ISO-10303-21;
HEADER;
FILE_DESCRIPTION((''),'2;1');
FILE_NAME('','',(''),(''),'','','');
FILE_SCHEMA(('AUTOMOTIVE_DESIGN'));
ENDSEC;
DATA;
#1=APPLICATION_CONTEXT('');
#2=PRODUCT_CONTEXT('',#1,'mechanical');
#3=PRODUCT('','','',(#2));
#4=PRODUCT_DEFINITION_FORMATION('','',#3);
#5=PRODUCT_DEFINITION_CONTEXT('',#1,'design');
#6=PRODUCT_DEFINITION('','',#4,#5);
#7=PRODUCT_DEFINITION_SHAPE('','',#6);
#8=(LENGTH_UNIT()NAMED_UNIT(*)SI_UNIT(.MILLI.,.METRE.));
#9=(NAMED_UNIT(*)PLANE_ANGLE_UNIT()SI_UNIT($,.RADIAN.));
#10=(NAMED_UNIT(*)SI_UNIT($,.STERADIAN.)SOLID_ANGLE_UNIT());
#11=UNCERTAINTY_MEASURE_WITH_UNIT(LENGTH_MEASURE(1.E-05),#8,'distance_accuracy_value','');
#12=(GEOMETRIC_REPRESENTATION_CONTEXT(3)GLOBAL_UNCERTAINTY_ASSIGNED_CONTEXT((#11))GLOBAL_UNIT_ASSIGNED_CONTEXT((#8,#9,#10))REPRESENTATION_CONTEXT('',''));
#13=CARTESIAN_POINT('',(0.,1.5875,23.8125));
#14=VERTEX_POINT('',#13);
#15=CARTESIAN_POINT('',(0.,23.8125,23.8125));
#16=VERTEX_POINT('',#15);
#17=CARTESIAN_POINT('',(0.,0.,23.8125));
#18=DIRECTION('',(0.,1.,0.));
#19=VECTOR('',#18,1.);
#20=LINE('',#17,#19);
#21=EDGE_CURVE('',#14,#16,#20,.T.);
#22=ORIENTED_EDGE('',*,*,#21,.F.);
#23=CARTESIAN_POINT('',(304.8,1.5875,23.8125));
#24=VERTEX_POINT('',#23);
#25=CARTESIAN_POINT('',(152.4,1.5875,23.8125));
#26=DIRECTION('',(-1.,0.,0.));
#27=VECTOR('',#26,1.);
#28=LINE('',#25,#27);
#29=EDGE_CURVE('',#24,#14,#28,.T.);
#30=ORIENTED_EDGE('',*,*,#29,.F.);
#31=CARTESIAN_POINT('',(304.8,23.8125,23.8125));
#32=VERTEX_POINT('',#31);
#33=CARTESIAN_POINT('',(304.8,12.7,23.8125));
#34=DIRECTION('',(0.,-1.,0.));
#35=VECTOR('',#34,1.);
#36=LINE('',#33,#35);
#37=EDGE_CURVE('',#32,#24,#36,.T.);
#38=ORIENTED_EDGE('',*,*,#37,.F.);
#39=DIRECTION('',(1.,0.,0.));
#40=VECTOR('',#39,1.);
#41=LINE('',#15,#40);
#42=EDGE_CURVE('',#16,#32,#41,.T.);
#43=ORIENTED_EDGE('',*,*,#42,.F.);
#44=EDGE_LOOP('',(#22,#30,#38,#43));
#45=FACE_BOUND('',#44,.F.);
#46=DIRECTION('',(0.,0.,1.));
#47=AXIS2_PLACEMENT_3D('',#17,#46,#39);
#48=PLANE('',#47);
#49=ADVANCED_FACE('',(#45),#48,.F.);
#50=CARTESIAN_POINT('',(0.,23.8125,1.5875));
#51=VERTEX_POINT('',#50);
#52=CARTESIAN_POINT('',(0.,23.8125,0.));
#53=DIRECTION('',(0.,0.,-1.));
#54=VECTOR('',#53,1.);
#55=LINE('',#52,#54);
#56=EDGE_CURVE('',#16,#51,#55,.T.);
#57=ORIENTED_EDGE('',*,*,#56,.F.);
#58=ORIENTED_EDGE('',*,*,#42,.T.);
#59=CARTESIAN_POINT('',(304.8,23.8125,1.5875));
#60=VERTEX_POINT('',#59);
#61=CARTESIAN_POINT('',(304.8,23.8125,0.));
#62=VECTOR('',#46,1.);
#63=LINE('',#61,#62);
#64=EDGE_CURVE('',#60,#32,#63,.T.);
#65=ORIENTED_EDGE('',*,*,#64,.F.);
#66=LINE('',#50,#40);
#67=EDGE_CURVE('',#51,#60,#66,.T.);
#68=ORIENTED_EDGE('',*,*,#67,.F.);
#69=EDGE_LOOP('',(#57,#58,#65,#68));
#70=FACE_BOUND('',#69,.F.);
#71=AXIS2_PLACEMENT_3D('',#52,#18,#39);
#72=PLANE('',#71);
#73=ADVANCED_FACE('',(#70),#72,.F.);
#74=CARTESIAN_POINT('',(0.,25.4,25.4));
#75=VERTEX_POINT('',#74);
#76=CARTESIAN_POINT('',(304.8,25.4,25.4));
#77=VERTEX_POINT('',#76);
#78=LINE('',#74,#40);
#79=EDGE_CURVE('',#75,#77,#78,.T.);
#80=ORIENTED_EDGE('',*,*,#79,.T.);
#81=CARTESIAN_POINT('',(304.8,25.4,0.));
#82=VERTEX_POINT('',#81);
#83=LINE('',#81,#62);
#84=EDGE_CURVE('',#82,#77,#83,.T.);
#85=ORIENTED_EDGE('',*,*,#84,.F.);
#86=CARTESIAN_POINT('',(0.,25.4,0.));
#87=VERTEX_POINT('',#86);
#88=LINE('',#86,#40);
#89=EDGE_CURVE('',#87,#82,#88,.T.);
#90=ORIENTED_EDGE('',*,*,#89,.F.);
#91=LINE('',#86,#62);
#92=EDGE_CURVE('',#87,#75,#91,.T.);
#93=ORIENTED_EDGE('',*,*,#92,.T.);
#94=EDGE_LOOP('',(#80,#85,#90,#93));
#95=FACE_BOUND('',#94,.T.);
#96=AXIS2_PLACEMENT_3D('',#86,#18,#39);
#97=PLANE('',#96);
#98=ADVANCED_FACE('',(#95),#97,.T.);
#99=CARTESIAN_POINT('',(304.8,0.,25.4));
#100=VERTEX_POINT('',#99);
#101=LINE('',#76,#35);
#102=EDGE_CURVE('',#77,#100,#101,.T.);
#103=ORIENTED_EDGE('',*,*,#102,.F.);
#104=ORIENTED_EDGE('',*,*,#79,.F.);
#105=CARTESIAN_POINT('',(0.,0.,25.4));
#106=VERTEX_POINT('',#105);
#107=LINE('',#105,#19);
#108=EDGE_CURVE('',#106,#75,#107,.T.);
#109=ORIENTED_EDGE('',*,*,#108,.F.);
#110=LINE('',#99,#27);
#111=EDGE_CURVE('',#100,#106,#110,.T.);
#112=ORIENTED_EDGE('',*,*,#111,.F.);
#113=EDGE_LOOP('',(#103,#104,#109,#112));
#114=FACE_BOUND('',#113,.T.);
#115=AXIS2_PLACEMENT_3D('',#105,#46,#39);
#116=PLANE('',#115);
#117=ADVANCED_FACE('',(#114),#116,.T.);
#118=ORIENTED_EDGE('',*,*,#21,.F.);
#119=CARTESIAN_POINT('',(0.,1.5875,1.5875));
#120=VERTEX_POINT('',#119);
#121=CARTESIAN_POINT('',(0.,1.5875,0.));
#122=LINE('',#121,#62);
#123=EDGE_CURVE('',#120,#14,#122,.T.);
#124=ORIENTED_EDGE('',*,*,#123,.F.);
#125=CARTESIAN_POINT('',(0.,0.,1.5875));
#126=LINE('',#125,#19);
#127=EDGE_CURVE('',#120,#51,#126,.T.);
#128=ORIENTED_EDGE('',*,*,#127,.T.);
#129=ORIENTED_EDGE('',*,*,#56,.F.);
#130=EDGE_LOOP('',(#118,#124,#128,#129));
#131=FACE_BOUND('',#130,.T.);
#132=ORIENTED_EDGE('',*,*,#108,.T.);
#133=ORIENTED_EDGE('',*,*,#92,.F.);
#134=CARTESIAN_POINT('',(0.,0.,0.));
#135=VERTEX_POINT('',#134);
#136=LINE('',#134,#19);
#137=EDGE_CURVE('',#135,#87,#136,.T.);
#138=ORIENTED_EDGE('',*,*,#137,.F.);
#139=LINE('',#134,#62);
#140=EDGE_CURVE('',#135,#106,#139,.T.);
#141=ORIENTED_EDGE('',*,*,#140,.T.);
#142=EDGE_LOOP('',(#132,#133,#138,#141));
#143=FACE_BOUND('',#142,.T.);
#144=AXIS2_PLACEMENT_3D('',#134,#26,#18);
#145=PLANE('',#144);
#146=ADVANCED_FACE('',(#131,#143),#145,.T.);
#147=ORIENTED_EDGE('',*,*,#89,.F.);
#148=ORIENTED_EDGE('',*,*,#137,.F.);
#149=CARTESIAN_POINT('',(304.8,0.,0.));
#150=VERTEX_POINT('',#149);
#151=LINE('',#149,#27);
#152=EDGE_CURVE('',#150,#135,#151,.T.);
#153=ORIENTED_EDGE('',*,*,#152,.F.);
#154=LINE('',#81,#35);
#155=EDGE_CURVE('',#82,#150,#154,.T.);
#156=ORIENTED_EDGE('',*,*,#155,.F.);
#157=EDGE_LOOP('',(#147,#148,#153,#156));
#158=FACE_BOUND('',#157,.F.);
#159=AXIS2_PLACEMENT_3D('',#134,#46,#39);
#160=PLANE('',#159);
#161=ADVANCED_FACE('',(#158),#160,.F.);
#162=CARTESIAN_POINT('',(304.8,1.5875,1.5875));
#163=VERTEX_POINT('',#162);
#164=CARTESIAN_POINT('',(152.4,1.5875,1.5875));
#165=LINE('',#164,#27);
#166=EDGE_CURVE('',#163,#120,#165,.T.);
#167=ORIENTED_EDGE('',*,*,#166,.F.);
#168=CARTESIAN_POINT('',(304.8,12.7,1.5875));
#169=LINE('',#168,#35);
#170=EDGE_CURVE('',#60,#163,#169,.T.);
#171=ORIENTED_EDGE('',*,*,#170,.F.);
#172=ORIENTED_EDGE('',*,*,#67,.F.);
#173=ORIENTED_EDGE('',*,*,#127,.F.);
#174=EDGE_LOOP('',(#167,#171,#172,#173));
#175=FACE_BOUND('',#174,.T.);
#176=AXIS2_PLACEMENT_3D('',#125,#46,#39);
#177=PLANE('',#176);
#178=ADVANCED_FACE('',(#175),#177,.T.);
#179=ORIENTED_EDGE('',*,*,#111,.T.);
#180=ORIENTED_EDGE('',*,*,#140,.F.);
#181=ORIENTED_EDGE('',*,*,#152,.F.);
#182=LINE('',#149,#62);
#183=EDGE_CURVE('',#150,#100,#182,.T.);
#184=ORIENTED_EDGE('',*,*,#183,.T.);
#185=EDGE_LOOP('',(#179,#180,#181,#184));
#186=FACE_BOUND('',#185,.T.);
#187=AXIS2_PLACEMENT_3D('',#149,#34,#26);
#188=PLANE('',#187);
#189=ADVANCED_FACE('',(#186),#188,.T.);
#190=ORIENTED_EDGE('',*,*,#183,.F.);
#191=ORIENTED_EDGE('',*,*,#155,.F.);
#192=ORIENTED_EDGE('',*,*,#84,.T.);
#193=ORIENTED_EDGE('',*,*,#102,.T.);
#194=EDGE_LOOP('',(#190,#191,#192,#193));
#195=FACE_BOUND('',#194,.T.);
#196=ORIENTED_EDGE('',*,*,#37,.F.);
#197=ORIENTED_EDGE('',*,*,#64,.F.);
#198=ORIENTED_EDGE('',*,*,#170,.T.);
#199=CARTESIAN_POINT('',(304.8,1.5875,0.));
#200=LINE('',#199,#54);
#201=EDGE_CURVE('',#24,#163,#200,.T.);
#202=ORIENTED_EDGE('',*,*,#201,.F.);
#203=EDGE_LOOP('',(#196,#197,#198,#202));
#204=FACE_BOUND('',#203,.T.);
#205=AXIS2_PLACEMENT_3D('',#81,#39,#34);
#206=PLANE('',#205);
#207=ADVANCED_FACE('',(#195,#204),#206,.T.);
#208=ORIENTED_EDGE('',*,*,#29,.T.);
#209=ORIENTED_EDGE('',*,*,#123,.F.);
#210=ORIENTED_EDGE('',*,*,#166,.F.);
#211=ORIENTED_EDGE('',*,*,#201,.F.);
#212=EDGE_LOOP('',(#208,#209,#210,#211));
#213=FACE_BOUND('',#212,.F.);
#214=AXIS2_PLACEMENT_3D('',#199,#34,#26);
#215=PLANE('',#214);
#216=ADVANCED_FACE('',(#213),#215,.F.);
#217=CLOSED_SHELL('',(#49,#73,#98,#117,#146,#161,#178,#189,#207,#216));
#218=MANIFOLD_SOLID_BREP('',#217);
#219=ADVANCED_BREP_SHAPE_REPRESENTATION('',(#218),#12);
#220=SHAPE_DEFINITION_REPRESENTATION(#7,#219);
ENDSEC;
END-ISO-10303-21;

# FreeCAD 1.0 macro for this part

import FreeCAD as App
import Part
import Sketcher
from FreeCAD import Vector
Q = App.Units.Quantity


def faces_at(feature, points):
    """Names of the faces that lie closest to the given points."""
    faces = feature.Shape.Faces
    near = lambda p: min(range(len(faces)), key=lambda i: faces[i].distToShape(Part.Vertex(*p))[0])
    return sorted({f"Face{near(p) + 1}" for p in points})

doc = App.newDocument("Part")
body = doc.addObject("PartDesign::Body", "Body")

sketch1 = body.newObject("Sketcher::SketchObject", "Sketch")
sketch1.AttachmentSupport = (doc.getObject("XY_Plane"), [""])
sketch1.MapMode = "FlatFace"
sketch1.addGeometry([
    Part.LineSegment(Vector(0, 25, 0), Vector(0, 0, 0)),
    Part.LineSegment(Vector(0, 0, 0), Vector(305, 0, 0)),
    Part.LineSegment(Vector(305, 0, 0), Vector(305, 25, 0)),
    Part.LineSegment(Vector(305, 25, 0), Vector(0, 25, 0)),
], False)
sketch1.addConstraint([
    Sketcher.Constraint("Coincident", 0, 2, 1, 1),
    Sketcher.Constraint("Coincident", 1, 2, 2, 1),
    Sketcher.Constraint("Coincident", 2, 2, 3, 1),
    Sketcher.Constraint("Coincident", 3, 2, 0, 1),
    Sketcher.Constraint("Vertical", 0),
    Sketcher.Constraint("Horizontal", 1),
    Sketcher.Constraint("Vertical", 2),
    Sketcher.Constraint("Horizontal", 3),
    Sketcher.Constraint("Coincident", 0, 2, -1, 1),
    Sketcher.Constraint("DistanceX", 1, 1, 1, 2, Q("12 in")),
    Sketcher.Constraint("DistanceY", 0, 2, 0, 1, Q("1 in")),
])
pad1 = body.newObject("PartDesign::Pad", "Pad")
pad1.Profile = sketch1
pad1.Length = Q("1 in")
doc.recompute()

thickness = body.newObject("PartDesign::Thickness", "Thickness")
thickness.Base = (pad1, faces_at(pad1, [(0, 8.467, 8.467), (304.8, 16.933, 8.467)]))
thickness.Value = Q("0.0625 in")
thickness.Reversed = True
thickness.Join = "Intersection"

doc.recompute()
